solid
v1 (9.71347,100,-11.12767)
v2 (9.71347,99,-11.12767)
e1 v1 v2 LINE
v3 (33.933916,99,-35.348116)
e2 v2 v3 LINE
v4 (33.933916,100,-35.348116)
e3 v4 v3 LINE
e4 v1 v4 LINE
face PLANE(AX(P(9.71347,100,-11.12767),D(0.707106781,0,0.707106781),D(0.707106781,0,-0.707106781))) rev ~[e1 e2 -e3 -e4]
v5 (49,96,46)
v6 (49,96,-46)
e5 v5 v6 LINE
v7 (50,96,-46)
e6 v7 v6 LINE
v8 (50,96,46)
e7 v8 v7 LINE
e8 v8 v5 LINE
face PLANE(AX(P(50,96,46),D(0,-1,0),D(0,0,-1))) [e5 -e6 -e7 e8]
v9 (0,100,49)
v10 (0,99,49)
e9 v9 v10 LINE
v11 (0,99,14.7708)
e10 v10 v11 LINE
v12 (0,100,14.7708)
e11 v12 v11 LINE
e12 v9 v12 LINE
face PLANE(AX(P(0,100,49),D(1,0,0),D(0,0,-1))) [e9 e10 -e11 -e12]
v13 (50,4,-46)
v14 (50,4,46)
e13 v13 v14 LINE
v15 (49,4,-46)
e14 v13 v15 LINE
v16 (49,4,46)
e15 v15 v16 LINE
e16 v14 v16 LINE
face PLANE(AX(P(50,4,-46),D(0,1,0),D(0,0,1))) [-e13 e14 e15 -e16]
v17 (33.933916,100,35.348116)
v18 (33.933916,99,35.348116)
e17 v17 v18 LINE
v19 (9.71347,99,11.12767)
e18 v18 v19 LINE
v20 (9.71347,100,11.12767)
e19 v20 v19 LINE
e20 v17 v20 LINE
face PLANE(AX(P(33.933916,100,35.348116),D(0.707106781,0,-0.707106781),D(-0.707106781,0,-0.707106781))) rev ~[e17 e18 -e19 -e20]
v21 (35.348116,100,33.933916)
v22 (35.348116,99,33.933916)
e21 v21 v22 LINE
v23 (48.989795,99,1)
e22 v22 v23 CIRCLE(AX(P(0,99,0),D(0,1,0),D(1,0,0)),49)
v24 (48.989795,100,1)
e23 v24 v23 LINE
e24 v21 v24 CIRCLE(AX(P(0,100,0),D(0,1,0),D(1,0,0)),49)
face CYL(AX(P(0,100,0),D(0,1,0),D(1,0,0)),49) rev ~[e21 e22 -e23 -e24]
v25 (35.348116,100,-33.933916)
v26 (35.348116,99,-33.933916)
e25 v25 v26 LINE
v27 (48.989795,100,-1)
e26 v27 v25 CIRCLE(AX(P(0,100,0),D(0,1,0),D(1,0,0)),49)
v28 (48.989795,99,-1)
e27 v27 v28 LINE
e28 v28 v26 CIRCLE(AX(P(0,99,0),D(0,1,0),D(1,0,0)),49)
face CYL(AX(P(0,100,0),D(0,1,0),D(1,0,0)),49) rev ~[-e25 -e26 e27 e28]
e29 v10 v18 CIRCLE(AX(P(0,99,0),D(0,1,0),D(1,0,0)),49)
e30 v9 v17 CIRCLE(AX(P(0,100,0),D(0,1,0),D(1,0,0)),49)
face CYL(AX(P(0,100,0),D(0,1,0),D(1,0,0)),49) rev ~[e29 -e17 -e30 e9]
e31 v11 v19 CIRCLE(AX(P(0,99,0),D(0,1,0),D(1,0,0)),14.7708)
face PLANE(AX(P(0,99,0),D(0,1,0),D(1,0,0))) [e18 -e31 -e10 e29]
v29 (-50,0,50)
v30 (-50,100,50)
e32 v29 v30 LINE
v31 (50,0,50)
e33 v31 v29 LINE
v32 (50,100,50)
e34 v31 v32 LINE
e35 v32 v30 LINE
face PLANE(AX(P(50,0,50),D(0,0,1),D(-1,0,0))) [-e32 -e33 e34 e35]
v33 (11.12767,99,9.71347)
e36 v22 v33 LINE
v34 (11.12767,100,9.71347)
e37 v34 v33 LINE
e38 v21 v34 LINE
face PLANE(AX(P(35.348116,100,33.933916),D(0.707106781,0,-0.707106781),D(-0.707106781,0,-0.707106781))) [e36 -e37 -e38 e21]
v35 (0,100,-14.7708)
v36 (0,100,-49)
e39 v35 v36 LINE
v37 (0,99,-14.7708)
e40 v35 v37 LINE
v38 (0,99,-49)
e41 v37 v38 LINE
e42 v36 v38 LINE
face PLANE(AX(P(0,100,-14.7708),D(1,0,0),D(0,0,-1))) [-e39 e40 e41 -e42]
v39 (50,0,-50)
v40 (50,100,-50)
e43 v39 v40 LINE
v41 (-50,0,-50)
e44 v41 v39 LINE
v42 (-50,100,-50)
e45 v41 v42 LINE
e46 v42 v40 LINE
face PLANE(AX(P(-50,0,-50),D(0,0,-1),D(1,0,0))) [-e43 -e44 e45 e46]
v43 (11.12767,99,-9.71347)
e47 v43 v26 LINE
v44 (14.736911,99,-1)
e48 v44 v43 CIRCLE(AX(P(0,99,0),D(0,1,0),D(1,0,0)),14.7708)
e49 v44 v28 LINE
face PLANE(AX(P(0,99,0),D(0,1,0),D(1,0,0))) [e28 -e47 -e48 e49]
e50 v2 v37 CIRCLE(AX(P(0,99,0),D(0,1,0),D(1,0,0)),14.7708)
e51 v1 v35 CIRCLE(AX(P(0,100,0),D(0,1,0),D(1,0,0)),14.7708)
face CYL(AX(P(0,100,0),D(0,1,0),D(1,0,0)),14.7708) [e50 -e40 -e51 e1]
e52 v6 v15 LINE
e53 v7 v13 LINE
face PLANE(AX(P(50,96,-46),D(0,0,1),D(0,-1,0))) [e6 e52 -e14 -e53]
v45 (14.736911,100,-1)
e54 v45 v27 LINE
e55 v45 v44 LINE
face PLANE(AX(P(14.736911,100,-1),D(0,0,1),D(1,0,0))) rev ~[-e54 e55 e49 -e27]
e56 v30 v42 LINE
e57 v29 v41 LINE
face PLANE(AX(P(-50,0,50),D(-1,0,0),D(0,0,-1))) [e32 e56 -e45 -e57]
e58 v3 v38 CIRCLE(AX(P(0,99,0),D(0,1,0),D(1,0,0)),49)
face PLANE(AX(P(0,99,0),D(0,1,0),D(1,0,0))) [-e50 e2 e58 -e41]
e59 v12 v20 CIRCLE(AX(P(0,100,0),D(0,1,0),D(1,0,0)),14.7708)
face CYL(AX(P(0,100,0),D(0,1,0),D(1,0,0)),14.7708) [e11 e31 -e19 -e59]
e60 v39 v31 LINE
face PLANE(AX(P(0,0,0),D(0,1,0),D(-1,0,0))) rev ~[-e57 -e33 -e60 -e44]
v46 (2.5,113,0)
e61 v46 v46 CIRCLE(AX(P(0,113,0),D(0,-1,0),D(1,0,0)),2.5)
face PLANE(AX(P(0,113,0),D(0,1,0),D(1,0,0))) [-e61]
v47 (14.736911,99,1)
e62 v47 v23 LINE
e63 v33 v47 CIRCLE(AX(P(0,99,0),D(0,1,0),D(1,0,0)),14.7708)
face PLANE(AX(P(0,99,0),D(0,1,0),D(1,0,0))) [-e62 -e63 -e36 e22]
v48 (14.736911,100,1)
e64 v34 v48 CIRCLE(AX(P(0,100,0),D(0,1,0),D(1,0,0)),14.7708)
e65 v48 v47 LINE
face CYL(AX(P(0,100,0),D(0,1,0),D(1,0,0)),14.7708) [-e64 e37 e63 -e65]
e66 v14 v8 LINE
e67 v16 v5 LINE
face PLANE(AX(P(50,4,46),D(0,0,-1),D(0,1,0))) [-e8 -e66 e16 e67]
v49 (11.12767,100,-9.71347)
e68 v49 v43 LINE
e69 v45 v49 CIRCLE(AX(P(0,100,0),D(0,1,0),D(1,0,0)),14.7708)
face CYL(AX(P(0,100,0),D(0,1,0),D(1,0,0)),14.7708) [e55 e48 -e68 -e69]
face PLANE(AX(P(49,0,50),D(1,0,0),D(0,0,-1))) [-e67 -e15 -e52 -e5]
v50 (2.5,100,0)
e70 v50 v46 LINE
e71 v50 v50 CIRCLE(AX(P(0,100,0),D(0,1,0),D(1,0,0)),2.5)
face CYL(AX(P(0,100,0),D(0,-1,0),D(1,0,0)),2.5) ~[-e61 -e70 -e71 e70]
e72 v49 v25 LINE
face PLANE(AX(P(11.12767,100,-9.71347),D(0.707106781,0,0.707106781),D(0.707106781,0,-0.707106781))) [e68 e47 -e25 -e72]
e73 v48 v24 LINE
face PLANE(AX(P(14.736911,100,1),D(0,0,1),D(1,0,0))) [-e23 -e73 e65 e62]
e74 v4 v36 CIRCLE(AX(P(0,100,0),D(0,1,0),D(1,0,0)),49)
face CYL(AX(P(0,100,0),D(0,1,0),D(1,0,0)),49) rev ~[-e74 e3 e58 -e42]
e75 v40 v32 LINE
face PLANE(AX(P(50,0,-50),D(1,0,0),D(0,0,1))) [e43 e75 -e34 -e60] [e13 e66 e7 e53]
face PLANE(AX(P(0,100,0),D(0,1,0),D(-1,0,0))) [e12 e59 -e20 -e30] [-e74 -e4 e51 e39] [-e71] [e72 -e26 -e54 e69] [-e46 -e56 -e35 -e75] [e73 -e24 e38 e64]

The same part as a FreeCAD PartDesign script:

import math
import FreeCAD as App
import Part
import Sketcher

V = App.Vector

doc = App.newDocument("Part")
body = doc.addObject("PartDesign::Body", "Body")

sketch1 = body.newObject("Sketcher::SketchObject", "Sketch")
sketch1.AttachmentSupport = (doc.getObject("XZ_Plane"), [""])
sketch1.MapMode = "FlatFace"
sketch1.addGeometry([
    Part.LineSegment(V(-50, 50, 0), V(50, 50, 0)),
    Part.LineSegment(V(50, 50, 0), V(50, -50, 0)),
    Part.LineSegment(V(50, -50, 0), V(-50, -50, 0)),
    Part.LineSegment(V(-50, -50, 0), V(-50, 50, 0)),
], False)
sketch1.addConstraint([
    Sketcher.Constraint("Coincident", 0, 2, 1, 1),
    Sketcher.Constraint("Coincident", 1, 2, 2, 1),
    Sketcher.Constraint("Coincident", 2, 2, 3, 1),
    Sketcher.Constraint("Coincident", 3, 2, 0, 1),
    Sketcher.Constraint("Horizontal", 0),
    Sketcher.Constraint("Vertical", 1),
    Sketcher.Constraint("Horizontal", 2),
    Sketcher.Constraint("Vertical", 3),
    Sketcher.Constraint("Symmetric", 0, 2, 2, 2, -1, 1),
    Sketcher.Constraint("Equal", 2, 1),
    Sketcher.Constraint("DistanceX", 0, 1, 0, 2, 100.0),
])
pad1 = body.newObject("PartDesign::Pad", "Pad")
pad1.Profile = sketch1
pad1.Length = 100
pad1.Reversed = True

sketch2 = body.newObject("Sketcher::SketchObject", "Sketch001")
sketch2.AttachmentSupport = (doc.getObject("XZ_Plane"), [""])
sketch2.MapMode = "FlatFace"
sketch2.AttachmentOffset = App.Placement(V(0, 0, -100), App.Rotation())
sketch2.addGeometry(Part.Circle(V(0, 0, 0), V(0, 0, 1), 2.5), False)
sketch2.addConstraint([
    Sketcher.Constraint("Coincident", 0, 3, -1, 1),
    Sketcher.Constraint("Diameter", 0, 5.0),
])
pad2 = body.newObject("PartDesign::Pad", "Pad001")
pad2.Profile = sketch2
pad2.Length = 13
pad2.Reversed = True

sketch3 = body.newObject("Sketcher::SketchObject", "Sketch002")
sketch3.AttachmentSupport = (doc.getObject("YZ_Plane"), [""])
sketch3.MapMode = "FlatFace"
sketch3.AttachmentOffset = App.Placement(V(0, 0, 50), App.Rotation())
sketch3.addGeometry([
    Part.LineSegment(V(4, -46, 0), V(96, -46, 0)),
    Part.LineSegment(V(96, -46, 0), V(96, 46, 0)),
    Part.LineSegment(V(96, 46, 0), V(4, 46, 0)),
    Part.LineSegment(V(4, 46, 0), V(4, -46, 0)),
], False)
sketch3.addConstraint([
    Sketcher.Constraint("Coincident", 0, 2, 1, 1),
    Sketcher.Constraint("Coincident", 1, 2, 2, 1),
    Sketcher.Constraint("Coincident", 2, 2, 3, 1),
    Sketcher.Constraint("Coincident", 3, 2, 0, 1),
    Sketcher.Constraint("Horizontal", 0),
    Sketcher.Constraint("Vertical", 1),
    Sketcher.Constraint("Horizontal", 2),
    Sketcher.Constraint("Vertical", 3),
    Sketcher.Constraint("Equal", 2, 1),
    Sketcher.Constraint("DistanceX", -1, 1, 2, 2, 4.0),
    Sketcher.Constraint("DistanceX", 0, 1, 0, 2, 92.0),
    Sketcher.Constraint("DistanceY", 0, 2, -1, 1, 46.0),
])
pocket1 = body.newObject("PartDesign::Pocket", "Pocket")
pocket1.Profile = sketch3
pocket1.Length = 1

sketch4 = body.newObject("Sketcher::SketchObject", "Sketch003")
sketch4.AttachmentSupport = (doc.getObject("XZ_Plane"), [""])
sketch4.MapMode = "FlatFace"
sketch4.AttachmentOffset = App.Placement(V(0, 0, -100), App.Rotation())
sketch4.addGeometry([
    Part.ArcOfCircle(Part.Circle(V(0, 0, 0), V(0, 0, 1), 14.7708), math.radians(-41.118078), math.radians(-3.881959)),
    Part.LineSegment(V(14.736911, -1, 0), V(48.989795, -1, 0)),
    Part.ArcOfCircle(Part.Circle(V(0, 0, 0), V(0, 0, 1), 49), math.radians(-43.830628), math.radians(-1.169383)),
    Part.LineSegment(V(35.348116, -33.933916, 0), V(11.12767, -9.71347, 0)),
    Part.LineSegment(V(48.989795, 1, 0), V(14.736911, 1, 0)),
    Part.ArcOfCircle(Part.Circle(V(0, 0, 0), V(0, 0, 1), 14.7708), math.radians(3.881959), math.radians(41.118078)),
    Part.LineSegment(V(11.12767, 9.71347, 0), V(35.348116, 33.933916, 0)),
    Part.ArcOfCircle(Part.Circle(V(0, 0, 0), V(0, 0, 1), 49), math.radians(1.169383), math.radians(43.830628)),
    Part.ArcOfCircle(Part.Circle(V(0, 0, 0), V(0, 0, 1), 14.7708), math.radians(-90), math.radians(-48.881922)),
    Part.LineSegment(V(9.71347, -11.12767, 0), V(33.933916, -35.348116, 0)),
    Part.ArcOfCircle(Part.Circle(V(0, 0, 0), V(0, 0, 1), 49), math.radians(-90), math.radians(-46.169372)),
    Part.LineSegment(V(0, -49, 0), V(0, -14.7708, 0)),
    Part.LineSegment(V(33.933916, 35.348116, 0), V(9.71347, 11.12767, 0)),
    Part.ArcOfCircle(Part.Circle(V(0, 0, 0), V(0, 0, 1), 14.7708), math.radians(48.881922), math.radians(90)),
    Part.LineSegment(V(0, 14.7708, 0), V(0, 49, 0)),
    Part.ArcOfCircle(Part.Circle(V(0, 0, 0), V(0, 0, 1), 49), math.radians(46.169372), math.radians(90)),
], False)
sketch4.addConstraint([
    Sketcher.Constraint("Coincident", 0, 2, 1, 1),
    Sketcher.Constraint("Coincident", 1, 2, 2, 2),
    Sketcher.Constraint("Coincident", 2, 1, 3, 1),
    Sketcher.Constraint("Coincident", 3, 2, 0, 1),
    Sketcher.Constraint("Coincident", 4, 2, 5, 1),
    Sketcher.Constraint("Coincident", 5, 2, 6, 1),
    Sketcher.Constraint("Coincident", 6, 2, 7, 2),
    Sketcher.Constraint("Coincident", 7, 1, 4, 1),
    Sketcher.Constraint("Coincident", 8, 2, 9, 1),
    Sketcher.Constraint("Coincident", 9, 2, 10, 2),
    Sketcher.Constraint("Coincident", 10, 1, 11, 1),
    Sketcher.Constraint("Coincident", 11, 2, 8, 1),
    Sketcher.Constraint("Coincident", 12, 2, 13, 1),
    Sketcher.Constraint("Coincident", 13, 2, 14, 1),
    Sketcher.Constraint("Coincident", 14, 2, 15, 2),
    Sketcher.Constraint("Coincident", 15, 1, 12, 1),
    Sketcher.Constraint("Horizontal", 1),
    Sketcher.Constraint("Horizontal", 4),
    Sketcher.Constraint("Vertical", 11),
    Sketcher.Constraint("Vertical", 14),
    Sketcher.Constraint("Coincident", 0, 3, -1, 1),
    Sketcher.Constraint("Coincident", 2, 3, -1, 1),
    Sketcher.Constraint("Coincident", 5, 3, -1, 1),
    Sketcher.Constraint("Coincident", 7, 3, -1, 1),
    Sketcher.Constraint("Coincident", 8, 3, -1, 1),
    Sketcher.Constraint("Coincident", 10, 3, -1, 1),
    Sketcher.Constraint("Coincident", 13, 3, -1, 1),
    Sketcher.Constraint("Coincident", 15, 3, -1, 1),
    Sketcher.Constraint("PointOnObject", 10, 1, -2),
    Sketcher.Constraint("PointOnObject", 13, 2, -2),
    Sketcher.Constraint("DistanceY", 0, 2, -1, 1, 1.0),
    Sketcher.Constraint("DistanceY", -1, 1, 4, 2, 1.0),
    Sketcher.Constraint("Radius", 2, 49.0),
    Sketcher.Constraint("Radius", 7, 49.0),
    Sketcher.Constraint("Radius", 10, 49.0),
    Sketcher.Constraint("Radius", 15, 49.0),
    Sketcher.Constraint("Radius", 0, 14.7708),
    Sketcher.Constraint("Radius", 5, 14.7708),
    Sketcher.Constraint("Radius", 8, 14.7708),
    Sketcher.Constraint("Radius", 13, 14.7708),
    Sketcher.Constraint("Distance", 3, 34.253),
    Sketcher.Constraint("Distance", 6, 34.253),
    Sketcher.Constraint("Distance", 9, 34.253),
    Sketcher.Constraint("Distance", 12, 34.253),
    Sketcher.Constraint("DistanceX", -1, 1, 2, 1, 35.348),
    Sketcher.Constraint("DistanceX", -1, 1, 6, 2, 35.348),
    Sketcher.Constraint("DistanceX", -1, 1, 9, 2, 33.934),
    Sketcher.Constraint("DistanceX", -1, 1, 15, 1, 33.934),
])
pocket2 = body.newObject("PartDesign::Pocket", "Pocket001")
pocket2.Profile = sketch4
pocket2.Length = 1
pocket2.Reversed = True

doc.recompute()
